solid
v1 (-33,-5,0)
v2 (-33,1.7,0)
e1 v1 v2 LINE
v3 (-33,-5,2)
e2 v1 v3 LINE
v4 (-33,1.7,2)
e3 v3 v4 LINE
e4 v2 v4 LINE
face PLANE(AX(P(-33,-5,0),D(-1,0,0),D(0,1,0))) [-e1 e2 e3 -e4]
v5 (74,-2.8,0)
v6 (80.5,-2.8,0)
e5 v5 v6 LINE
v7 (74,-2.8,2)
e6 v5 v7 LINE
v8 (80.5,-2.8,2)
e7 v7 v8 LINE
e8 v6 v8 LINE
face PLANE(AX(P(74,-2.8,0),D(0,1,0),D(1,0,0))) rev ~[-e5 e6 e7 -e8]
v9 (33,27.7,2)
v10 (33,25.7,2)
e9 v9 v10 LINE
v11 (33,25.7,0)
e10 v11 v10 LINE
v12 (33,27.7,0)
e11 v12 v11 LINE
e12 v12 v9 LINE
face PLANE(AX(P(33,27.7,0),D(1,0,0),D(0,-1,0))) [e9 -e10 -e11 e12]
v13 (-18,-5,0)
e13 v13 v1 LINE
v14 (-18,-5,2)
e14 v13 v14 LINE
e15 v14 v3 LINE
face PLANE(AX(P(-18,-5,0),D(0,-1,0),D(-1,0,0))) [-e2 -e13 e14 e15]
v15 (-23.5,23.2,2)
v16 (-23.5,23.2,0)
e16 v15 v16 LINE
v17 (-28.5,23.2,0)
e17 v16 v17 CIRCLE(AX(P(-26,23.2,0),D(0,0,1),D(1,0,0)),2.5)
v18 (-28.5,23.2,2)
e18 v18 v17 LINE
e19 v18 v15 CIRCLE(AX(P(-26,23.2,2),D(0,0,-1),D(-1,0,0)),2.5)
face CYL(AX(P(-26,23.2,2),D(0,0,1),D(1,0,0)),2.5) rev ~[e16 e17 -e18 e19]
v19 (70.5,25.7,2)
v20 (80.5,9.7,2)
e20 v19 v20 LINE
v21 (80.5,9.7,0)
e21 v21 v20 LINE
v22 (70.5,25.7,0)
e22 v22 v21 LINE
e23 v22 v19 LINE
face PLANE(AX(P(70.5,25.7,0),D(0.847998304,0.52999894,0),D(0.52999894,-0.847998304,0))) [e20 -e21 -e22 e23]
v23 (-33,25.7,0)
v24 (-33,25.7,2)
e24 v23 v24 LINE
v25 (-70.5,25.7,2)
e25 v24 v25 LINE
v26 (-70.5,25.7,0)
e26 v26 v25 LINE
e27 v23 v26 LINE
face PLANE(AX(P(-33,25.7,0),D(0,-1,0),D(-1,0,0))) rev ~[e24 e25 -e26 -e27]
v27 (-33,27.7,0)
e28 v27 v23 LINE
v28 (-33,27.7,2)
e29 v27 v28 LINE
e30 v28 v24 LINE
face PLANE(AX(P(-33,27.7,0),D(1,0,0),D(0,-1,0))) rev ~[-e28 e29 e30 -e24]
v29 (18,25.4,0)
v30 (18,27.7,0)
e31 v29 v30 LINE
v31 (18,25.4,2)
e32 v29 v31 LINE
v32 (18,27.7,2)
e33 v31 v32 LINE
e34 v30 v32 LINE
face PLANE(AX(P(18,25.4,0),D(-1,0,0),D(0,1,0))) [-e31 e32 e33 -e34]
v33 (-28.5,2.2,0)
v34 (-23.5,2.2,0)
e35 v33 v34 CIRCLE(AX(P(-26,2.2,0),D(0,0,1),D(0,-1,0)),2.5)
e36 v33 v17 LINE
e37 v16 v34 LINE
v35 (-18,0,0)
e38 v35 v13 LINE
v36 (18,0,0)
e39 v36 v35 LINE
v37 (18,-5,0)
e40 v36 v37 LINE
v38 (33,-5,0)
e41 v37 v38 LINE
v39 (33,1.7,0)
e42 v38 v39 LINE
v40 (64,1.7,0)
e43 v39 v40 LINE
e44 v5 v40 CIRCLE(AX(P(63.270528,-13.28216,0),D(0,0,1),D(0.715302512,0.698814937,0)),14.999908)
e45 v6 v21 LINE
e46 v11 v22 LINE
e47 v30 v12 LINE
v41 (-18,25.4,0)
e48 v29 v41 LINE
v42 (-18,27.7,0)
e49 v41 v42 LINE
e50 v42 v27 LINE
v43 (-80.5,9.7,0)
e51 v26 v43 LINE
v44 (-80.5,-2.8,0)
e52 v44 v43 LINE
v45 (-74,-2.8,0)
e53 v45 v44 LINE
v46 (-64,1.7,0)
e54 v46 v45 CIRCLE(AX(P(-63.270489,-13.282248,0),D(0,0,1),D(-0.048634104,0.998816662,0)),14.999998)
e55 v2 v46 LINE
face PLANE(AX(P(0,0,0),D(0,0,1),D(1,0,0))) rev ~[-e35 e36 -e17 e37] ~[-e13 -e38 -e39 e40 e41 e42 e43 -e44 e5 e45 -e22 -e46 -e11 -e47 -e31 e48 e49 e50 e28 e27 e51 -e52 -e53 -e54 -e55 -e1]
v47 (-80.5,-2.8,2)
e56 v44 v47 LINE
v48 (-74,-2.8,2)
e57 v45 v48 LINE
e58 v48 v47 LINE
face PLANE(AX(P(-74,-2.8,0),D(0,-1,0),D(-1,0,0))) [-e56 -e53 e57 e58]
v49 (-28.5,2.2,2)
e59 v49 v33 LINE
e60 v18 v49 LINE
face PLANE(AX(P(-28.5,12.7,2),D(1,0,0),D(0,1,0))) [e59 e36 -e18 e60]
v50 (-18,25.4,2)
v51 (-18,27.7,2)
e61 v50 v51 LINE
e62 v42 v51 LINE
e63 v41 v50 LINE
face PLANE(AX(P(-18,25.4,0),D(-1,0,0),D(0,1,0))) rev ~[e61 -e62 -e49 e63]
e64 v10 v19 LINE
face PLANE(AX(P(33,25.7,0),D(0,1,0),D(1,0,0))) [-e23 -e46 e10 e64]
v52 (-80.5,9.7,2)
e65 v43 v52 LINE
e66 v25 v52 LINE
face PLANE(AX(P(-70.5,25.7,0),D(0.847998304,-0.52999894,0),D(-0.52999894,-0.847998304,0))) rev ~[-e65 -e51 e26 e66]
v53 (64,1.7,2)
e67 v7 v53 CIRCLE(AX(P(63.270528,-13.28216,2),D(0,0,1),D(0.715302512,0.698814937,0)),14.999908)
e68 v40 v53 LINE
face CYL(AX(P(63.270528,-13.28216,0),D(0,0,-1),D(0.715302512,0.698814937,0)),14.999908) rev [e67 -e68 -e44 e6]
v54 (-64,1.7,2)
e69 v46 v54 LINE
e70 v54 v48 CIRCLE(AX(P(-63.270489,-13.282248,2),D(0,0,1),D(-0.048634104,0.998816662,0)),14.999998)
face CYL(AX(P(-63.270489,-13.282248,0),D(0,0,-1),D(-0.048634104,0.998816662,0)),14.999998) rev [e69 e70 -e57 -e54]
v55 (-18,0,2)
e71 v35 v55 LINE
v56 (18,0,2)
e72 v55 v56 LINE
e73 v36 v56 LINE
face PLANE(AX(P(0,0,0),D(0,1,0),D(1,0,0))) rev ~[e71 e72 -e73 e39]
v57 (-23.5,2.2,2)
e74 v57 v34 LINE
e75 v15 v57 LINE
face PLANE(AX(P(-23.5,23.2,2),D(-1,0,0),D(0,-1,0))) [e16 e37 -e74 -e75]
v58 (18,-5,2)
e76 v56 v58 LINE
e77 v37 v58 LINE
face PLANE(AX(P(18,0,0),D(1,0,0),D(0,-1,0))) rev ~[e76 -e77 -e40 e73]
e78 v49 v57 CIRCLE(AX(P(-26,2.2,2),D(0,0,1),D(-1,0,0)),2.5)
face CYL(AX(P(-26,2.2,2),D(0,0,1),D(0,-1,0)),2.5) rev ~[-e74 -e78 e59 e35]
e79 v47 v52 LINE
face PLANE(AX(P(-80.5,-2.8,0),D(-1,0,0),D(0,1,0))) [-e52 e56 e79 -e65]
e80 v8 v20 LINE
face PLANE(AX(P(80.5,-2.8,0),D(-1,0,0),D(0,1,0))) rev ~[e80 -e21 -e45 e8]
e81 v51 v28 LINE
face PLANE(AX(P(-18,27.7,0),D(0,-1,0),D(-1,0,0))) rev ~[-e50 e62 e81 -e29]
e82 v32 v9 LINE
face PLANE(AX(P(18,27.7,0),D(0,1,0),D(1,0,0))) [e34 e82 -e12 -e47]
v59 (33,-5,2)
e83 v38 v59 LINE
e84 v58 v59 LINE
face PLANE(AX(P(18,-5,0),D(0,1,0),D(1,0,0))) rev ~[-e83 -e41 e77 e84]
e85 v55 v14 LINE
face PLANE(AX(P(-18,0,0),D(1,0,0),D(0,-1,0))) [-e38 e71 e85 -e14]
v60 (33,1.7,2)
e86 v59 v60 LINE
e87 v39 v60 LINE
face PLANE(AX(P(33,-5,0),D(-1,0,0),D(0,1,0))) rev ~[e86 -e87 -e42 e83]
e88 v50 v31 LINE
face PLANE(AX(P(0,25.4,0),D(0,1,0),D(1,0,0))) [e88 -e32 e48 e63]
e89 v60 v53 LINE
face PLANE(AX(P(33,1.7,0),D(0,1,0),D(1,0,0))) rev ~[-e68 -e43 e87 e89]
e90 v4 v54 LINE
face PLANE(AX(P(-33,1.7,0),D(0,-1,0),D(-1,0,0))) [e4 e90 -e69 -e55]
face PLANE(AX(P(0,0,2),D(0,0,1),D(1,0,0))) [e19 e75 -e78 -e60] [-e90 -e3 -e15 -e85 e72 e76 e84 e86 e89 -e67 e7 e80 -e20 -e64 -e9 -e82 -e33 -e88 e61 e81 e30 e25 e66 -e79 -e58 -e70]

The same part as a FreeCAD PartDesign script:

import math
import FreeCAD as App
import Part
import Sketcher

doc = App.newDocument("Part")
body = doc.addObject("PartDesign::Body", "Body")

# Sketch on XY plane
sketch1 = body.newObject("Sketcher::SketchObject", "Sketch")
sketch1.AttachmentSupport = (doc.getObject("XY_Plane"), [""])
sketch1.MapMode = "FlatFace"
sketch1.addGeometry([
    Part.LineSegment(App.Vector(18, 25.4, 0), App.Vector(-18, 25.4, 0)),  # 0
    Part.LineSegment(App.Vector(-18, 25.4, 0), App.Vector(-18, 27.7, 0)),  # 1
    Part.LineSegment(App.Vector(-18, 27.7, 0), App.Vector(-33, 27.7, 0)),  # 2
    Part.LineSegment(App.Vector(-33, 27.7, 0), App.Vector(-33, 25.7, 0)),  # 3
    Part.LineSegment(App.Vector(-33, 25.7, 0), App.Vector(-70.5, 25.7, 0)),  # 4
    Part.LineSegment(App.Vector(-70.5, 25.7, 0), App.Vector(-80.5, 9.7, 0)),  # 5
    Part.LineSegment(App.Vector(-80.5, 9.7, 0), App.Vector(-80.5, -2.8, 0)),  # 6
    Part.LineSegment(App.Vector(-80.5, -2.8, 0), App.Vector(-74, -2.8, 0)),  # 7
    Part.ArcOfCircle(Part.Circle(App.Vector(-63.2705, -13.2822, 0), App.Vector(0, 0, 1), 14.99995), math.radians(92.787594), math.radians(135.667962)),  # 8
    Part.LineSegment(App.Vector(-64, 1.7, 0), App.Vector(-33, 1.7, 0)),  # 9
    Part.LineSegment(App.Vector(-33, 1.7, 0), App.Vector(-33, -5, 0)),  # 10
    Part.LineSegment(App.Vector(-33, -5, 0), App.Vector(-18, -5, 0)),  # 11
    Part.LineSegment(App.Vector(-18, -5, 0), App.Vector(-18, 0, 0)),  # 12
    Part.LineSegment(App.Vector(-18, 0, 0), App.Vector(18, 0, 0)),  # 13
    Part.LineSegment(App.Vector(18, 0, 0), App.Vector(18, -5, 0)),  # 14
    Part.LineSegment(App.Vector(18, -5, 0), App.Vector(33, -5, 0)),  # 15
    Part.LineSegment(App.Vector(33, -5, 0), App.Vector(33, 1.7, 0)),  # 16
    Part.LineSegment(App.Vector(33, 1.7, 0), App.Vector(64, 1.7, 0)),  # 17
    Part.ArcOfCircle(Part.Circle(App.Vector(63.2705, -13.2822, 0), App.Vector(0, 0, 1), 14.999956), math.radians(44.332038), math.radians(87.212406)),  # 18
    Part.LineSegment(App.Vector(74, -2.8, 0), App.Vector(80.5, -2.8, 0)),  # 19
    Part.LineSegment(App.Vector(80.5, -2.8, 0), App.Vector(80.5, 9.7, 0)),  # 20
    Part.LineSegment(App.Vector(80.5, 9.7, 0), App.Vector(70.5, 25.7, 0)),  # 21
    Part.LineSegment(App.Vector(70.5, 25.7, 0), App.Vector(33, 25.7, 0)),  # 22
    Part.LineSegment(App.Vector(33, 25.7, 0), App.Vector(33, 27.7, 0)),  # 23
    Part.LineSegment(App.Vector(33, 27.7, 0), App.Vector(18, 27.7, 0)),  # 24
    Part.LineSegment(App.Vector(18, 27.7, 0), App.Vector(18, 25.4, 0)),  # 25
], False)
sketch1.addConstraint([
    Sketcher.Constraint("Coincident", 0, 2, 1, 1),
    Sketcher.Constraint("Coincident", 1, 2, 2, 1),
    Sketcher.Constraint("Coincident", 2, 2, 3, 1),
    Sketcher.Constraint("Coincident", 3, 2, 4, 1),
    Sketcher.Constraint("Coincident", 4, 2, 5, 1),
    Sketcher.Constraint("Coincident", 5, 2, 6, 1),
    Sketcher.Constraint("Coincident", 6, 2, 7, 1),
    Sketcher.Constraint("Coincident", 7, 2, 8, 2),
    Sketcher.Constraint("Coincident", 8, 1, 9, 1),
    Sketcher.Constraint("Coincident", 9, 2, 10, 1),
    Sketcher.Constraint("Coincident", 10, 2, 11, 1),
    Sketcher.Constraint("Coincident", 11, 2, 12, 1),
    Sketcher.Constraint("Coincident", 12, 2, 13, 1),
    Sketcher.Constraint("Coincident", 13, 2, 14, 1),
    Sketcher.Constraint("Coincident", 14, 2, 15, 1),
    Sketcher.Constraint("Coincident", 15, 2, 16, 1),
    Sketcher.Constraint("Coincident", 16, 2, 17, 1),
    Sketcher.Constraint("Coincident", 17, 2, 18, 2),
    Sketcher.Constraint("Coincident", 18, 1, 19, 1),
    Sketcher.Constraint("Coincident", 19, 2, 20, 1),
    Sketcher.Constraint("Coincident", 20, 2, 21, 1),
    Sketcher.Constraint("Coincident", 21, 2, 22, 1),
    Sketcher.Constraint("Coincident", 22, 2, 23, 1),
    Sketcher.Constraint("Coincident", 23, 2, 24, 1),
    Sketcher.Constraint("Coincident", 24, 2, 25, 1),
    Sketcher.Constraint("Coincident", 25, 2, 0, 1),
    Sketcher.Constraint("Horizontal", 0),
    Sketcher.Constraint("Vertical", 1),
    Sketcher.Constraint("Horizontal", 2),
    Sketcher.Constraint("Vertical", 3),
    Sketcher.Constraint("Horizontal", 4),
    Sketcher.Constraint("Vertical", 6),
    Sketcher.Constraint("Horizontal", 7),
    Sketcher.Constraint("Horizontal", 9),
    Sketcher.Constraint("Vertical", 10),
    Sketcher.Constraint("Horizontal", 11),
    Sketcher.Constraint("Vertical", 12),
    Sketcher.Constraint("Horizontal", 13),
    Sketcher.Constraint("Vertical", 14),
    Sketcher.Constraint("Horizontal", 15),
    Sketcher.Constraint("Vertical", 16),
    Sketcher.Constraint("Horizontal", 17),
    Sketcher.Constraint("Horizontal", 19),
    Sketcher.Constraint("Vertical", 20),
    Sketcher.Constraint("Horizontal", 22),
    Sketcher.Constraint("Vertical", 23),
    Sketcher.Constraint("Horizontal", 24),
    Sketcher.Constraint("Vertical", 25),
    Sketcher.Constraint("Equal", 8, 18),
    Sketcher.Constraint("Symmetric", 12, 2, 13, 2, -1, 1),
    Sketcher.Constraint("Symmetric", 8, 3, 18, 3, -2),
    Sketcher.Constraint("Symmetric", 10, 2, 15, 2, -2),
    Sketcher.Constraint("Symmetric", 6, 2, 19, 2, -2),
    Sketcher.Constraint("Symmetric", 4, 2, 21, 2, -2),
    Sketcher.Constraint("Symmetric", 2, 2, 23, 2, -2),
    Sketcher.Constraint("Horizontal", 9, 2, 16, 2),
    Sketcher.Constraint("Horizontal", 5, 2, 20, 2),
    Sketcher.Constraint("Vertical", 3, 2, 9, 2),
    Sketcher.Constraint("Vertical", 1, 2, 11, 2),
    Sketcher.Constraint("Vertical", 14, 2, 24, 2),
    Sketcher.Constraint("Radius", 8, 15.0),
    Sketcher.Constraint("DistanceX", 2, 2, 2, 1, 15.0),
    Sketcher.Constraint("DistanceX", 9, 1, 9, 2, 31.0),
    Sketcher.Constraint("DistanceY", 3, 2, 3, 1, 2.0),
    Sketcher.Constraint("DistanceY", 12, 1, 12, 2, 5.0),
    Sketcher.Constraint("DistanceX", 4, 2, 4, 1, 37.5),
    Sketcher.Constraint("DistanceX", 7, 1, 7, 2, 6.5),
    Sketcher.Constraint("DistanceY", 1, 1, 1, 2, 2.3),
    Sketcher.Constraint("DistanceY", 6, 2, 6, 1, 12.5),
    Sketcher.Constraint("DistanceY", 10, 2, 10, 1, 6.7),
    Sketcher.Constraint("DistanceX", 0, 2, -1, 1, 18.0),
    Sketcher.Constraint("DistanceX", 5, 2, 4, 2, 10.0),
    Sketcher.Constraint("DistanceY", 5, 2, 2, 2, 18.0),
    Sketcher.Constraint("DistanceY", 8, 1, 4, 2, 24.0),
])
pad1 = body.newObject("PartDesign::Pad", "Pad")
pad1.Profile = sketch1
pad1.Length = 2

# Sketch on XY plane
sketch2 = body.newObject("Sketcher::SketchObject", "Sketch001")
sketch2.AttachmentSupport = (doc.getObject("XY_Plane"), [""])
sketch2.MapMode = "FlatFace"
sketch2.AttachmentOffset = App.Placement(App.Vector(0, 0, 2), App.Rotation())
sketch2.addGeometry([
    Part.ArcOfCircle(Part.Circle(App.Vector(-26, 23.2, 0), App.Vector(0, 0, 1), 2.5), math.radians(0), math.radians(180)),
    Part.LineSegment(App.Vector(-28.5, 23.2, 0), App.Vector(-28.5, 2.2, 0)),
    Part.ArcOfCircle(Part.Circle(App.Vector(-26, 2.2, 0), App.Vector(0, 0, 1), 2.5), math.radians(180), math.radians(360)),
    Part.LineSegment(App.Vector(-23.5, 2.2, 0), App.Vector(-23.5, 23.2, 0)),
], False)
sketch2.addConstraint([
    Sketcher.Constraint("Tangent", 0, 2, 1, 1),
    Sketcher.Constraint("Tangent", 1, 2, 2, 1),
    Sketcher.Constraint("Tangent", 2, 2, 3, 1),
    Sketcher.Constraint("Tangent", 3, 2, 0, 1),
    Sketcher.Constraint("Vertical", 1),
    Sketcher.Constraint("Vertical", 3),
    Sketcher.Constraint("Radius", 0, 2.5),
    Sketcher.Constraint("DistanceX", 0, 3, -1, 1, 26.0),
    Sketcher.Constraint("DistanceY", 1, 2, 1, 1, 21.0),
    Sketcher.Constraint("DistanceY", -1, 1, 0, 3, 23.2),
])
pocket1 = body.newObject("PartDesign::Pocket", "Pocket")
pocket1.Profile = sketch2
pocket1.Type = "ThroughAll"

doc.recompute()
